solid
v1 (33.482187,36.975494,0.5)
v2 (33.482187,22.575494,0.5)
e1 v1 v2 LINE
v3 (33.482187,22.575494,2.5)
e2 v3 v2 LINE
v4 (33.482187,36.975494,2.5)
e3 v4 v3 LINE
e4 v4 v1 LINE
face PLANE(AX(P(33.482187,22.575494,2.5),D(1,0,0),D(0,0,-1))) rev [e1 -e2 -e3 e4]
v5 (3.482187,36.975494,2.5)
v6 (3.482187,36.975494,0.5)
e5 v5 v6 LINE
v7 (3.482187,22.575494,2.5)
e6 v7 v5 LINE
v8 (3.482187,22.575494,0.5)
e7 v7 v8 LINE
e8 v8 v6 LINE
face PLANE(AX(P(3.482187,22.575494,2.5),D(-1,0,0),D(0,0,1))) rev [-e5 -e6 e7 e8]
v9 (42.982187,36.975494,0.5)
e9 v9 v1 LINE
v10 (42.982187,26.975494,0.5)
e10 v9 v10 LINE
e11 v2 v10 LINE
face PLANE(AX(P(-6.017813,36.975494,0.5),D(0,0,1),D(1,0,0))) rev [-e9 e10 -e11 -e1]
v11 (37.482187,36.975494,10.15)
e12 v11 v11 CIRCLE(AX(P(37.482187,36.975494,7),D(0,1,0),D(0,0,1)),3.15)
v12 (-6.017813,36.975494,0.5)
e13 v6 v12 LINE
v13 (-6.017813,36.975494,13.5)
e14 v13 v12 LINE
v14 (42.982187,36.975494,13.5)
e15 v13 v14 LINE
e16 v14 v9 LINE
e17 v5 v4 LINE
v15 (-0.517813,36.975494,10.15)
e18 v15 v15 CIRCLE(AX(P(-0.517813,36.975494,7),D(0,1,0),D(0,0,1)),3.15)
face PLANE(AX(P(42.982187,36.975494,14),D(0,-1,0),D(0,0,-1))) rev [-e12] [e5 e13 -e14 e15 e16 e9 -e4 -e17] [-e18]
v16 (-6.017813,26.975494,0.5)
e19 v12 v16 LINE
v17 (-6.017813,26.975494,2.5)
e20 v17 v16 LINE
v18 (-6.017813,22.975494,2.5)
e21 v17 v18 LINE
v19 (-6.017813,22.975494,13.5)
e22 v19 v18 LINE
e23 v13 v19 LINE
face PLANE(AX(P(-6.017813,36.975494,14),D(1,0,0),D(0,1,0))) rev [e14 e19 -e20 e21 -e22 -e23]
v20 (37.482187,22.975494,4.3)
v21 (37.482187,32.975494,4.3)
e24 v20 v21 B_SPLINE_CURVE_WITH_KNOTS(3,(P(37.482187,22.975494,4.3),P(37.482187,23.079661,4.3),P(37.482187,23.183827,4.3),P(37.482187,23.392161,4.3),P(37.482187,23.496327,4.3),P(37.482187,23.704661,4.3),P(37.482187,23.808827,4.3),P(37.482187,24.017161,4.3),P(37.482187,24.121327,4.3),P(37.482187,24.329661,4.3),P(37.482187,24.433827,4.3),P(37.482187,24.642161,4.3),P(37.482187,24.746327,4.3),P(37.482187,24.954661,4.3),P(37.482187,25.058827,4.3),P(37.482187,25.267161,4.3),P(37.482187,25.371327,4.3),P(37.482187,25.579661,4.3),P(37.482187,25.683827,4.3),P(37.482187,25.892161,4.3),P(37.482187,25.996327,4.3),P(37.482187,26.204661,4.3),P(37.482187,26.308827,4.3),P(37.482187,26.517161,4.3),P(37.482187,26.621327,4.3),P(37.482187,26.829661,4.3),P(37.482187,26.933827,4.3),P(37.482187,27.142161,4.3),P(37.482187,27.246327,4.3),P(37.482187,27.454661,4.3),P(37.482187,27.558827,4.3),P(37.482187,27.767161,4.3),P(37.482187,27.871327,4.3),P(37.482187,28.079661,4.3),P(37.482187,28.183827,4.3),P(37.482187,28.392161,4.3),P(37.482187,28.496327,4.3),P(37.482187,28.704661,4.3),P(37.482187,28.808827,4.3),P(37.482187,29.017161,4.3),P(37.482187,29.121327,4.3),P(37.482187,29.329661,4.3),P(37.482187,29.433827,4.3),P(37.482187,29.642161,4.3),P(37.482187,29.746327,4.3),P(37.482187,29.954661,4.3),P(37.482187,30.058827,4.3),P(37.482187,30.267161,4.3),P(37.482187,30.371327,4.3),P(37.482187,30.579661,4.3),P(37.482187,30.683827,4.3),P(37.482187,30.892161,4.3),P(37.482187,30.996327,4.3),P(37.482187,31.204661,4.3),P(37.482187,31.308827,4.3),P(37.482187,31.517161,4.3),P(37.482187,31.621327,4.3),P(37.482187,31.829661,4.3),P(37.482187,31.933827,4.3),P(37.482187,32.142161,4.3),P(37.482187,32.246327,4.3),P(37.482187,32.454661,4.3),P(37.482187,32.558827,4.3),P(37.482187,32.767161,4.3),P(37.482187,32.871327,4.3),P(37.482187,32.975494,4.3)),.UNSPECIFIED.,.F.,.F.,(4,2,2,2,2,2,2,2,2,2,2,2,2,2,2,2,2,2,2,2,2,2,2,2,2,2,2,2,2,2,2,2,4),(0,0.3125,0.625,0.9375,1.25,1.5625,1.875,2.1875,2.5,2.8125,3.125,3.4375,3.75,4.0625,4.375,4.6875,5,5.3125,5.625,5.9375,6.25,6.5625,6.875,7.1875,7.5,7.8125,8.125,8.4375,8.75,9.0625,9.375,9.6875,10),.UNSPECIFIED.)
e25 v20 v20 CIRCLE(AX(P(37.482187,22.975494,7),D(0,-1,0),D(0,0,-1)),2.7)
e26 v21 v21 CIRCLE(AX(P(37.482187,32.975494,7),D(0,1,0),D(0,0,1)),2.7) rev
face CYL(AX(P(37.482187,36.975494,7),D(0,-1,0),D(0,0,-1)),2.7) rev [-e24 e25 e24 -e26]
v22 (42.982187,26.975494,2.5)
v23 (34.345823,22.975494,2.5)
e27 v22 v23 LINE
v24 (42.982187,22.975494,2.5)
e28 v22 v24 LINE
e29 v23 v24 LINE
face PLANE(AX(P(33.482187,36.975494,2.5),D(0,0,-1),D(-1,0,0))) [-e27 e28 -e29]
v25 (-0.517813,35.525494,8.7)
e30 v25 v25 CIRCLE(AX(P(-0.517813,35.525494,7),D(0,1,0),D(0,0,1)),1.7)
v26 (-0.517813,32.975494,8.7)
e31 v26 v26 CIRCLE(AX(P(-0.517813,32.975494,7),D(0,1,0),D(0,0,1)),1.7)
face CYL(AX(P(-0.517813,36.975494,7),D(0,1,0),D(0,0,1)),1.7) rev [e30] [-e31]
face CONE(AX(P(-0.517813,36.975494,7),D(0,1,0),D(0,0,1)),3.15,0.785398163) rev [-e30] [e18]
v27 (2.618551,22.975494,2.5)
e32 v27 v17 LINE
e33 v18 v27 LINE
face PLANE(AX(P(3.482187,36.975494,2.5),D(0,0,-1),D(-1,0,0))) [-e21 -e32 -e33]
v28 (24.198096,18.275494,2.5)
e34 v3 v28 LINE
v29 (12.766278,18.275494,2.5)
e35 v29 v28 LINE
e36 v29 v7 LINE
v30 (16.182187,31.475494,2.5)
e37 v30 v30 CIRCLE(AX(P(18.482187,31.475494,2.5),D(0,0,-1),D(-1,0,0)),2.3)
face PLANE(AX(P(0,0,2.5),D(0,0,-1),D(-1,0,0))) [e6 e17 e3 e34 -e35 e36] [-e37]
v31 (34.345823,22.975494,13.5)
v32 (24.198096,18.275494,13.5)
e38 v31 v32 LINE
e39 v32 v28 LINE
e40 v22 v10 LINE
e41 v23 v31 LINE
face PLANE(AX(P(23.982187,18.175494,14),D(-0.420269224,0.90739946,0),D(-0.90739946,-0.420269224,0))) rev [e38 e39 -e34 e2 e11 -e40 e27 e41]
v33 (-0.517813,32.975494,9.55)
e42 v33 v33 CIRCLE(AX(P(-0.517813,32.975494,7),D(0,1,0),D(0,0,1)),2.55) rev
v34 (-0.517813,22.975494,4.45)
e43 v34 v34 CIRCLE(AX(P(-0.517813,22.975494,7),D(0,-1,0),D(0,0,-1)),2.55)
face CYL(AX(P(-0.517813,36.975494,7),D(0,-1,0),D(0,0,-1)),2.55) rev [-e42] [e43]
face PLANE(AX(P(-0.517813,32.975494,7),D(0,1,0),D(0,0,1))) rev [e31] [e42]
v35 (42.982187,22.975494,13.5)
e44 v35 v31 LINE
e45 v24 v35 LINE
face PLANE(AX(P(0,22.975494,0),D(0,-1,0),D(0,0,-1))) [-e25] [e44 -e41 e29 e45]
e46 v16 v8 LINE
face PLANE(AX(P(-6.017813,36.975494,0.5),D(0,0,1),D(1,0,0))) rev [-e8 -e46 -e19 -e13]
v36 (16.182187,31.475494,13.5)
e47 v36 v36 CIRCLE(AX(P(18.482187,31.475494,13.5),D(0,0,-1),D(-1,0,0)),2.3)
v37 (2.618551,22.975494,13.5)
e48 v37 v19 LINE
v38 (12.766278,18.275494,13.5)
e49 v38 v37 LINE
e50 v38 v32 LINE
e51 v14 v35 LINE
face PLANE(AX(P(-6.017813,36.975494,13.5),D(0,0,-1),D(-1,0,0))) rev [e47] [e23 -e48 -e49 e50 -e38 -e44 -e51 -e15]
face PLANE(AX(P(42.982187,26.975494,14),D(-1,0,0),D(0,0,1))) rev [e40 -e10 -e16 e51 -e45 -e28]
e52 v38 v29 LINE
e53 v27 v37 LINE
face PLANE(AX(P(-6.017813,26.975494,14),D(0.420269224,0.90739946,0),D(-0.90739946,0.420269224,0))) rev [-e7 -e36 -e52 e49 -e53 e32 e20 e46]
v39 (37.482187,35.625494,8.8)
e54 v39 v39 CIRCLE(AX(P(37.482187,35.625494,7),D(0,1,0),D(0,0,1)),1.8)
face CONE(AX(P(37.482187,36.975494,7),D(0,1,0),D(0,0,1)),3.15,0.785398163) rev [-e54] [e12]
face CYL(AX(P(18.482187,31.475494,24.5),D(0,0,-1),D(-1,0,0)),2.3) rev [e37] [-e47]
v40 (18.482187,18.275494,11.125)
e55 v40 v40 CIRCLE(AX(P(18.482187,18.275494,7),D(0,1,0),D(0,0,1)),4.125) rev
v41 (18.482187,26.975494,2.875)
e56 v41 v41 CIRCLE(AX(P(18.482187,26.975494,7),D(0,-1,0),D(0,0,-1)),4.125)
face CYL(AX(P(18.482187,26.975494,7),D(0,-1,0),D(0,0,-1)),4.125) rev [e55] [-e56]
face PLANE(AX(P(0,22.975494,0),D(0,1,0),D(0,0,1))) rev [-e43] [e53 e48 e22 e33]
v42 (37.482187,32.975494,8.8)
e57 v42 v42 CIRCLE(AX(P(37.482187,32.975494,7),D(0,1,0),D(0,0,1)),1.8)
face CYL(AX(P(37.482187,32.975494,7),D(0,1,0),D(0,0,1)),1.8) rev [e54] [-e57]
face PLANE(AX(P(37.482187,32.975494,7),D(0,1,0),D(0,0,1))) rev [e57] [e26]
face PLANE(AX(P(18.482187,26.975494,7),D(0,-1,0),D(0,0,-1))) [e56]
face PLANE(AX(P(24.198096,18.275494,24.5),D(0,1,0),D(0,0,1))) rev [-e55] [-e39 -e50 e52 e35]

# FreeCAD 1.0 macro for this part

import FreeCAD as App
import Part
import Sketcher


def add_polygon(sketch, points):
    """Adds a closed chain of lines whose ends are joined by coincident constraints."""
    first, n = sketch.GeometryCount, len(points)
    for a, b in zip(points, points[1:] + points[:1]):
        sketch.addGeometry(Part.LineSegment(App.Vector(*a, 0), App.Vector(*b, 0)), False)
    for i in range(n):
        sketch.addConstraint(Sketcher.Constraint("Coincident", first + i, 2, first + (i + 1) % n, 1))

doc = App.newDocument("Part")
body = doc.addObject("PartDesign::Body", "Body")

# Sketch on XY plane
sketch1 = body.newObject("Sketcher::SketchObject", "Sketch")
sketch1.AttachmentSupport = (doc.getObject("XY_Plane"), [""])
sketch1.MapMode = "FlatFace"
add_polygon(sketch1, [(13, 18), (24, 18), (43, 27), (43, 37), (-6, 37), (-6, 27)])  # lines 0-5
sketch1.addConstraint(Sketcher.Constraint("Horizontal", 0))
sketch1.addConstraint(Sketcher.Constraint("Vertical", 2))
sketch1.addConstraint(Sketcher.Constraint("Horizontal", 3))
sketch1.addConstraint(Sketcher.Constraint("Vertical", 4))
sketch1.addConstraint(Sketcher.Constraint("Horizontal", 1, 2, 4, 2))
sketch1.addConstraint(Sketcher.Constraint("Equal", 1, 5))
sketch1.addConstraint(Sketcher.Constraint("DistanceX", 0, 1, 0, 2, 11.0))
sketch1.addConstraint(Sketcher.Constraint("DistanceX", 3, 2, 3, 1, 49.0))
sketch1.addConstraint(Sketcher.Constraint("DistanceY", 2, 1, 2, 2, 10.0))
sketch1.addConstraint(Sketcher.Constraint("DistanceY", 0, 2, 1, 2, 8.8))
sketch1.addConstraint(Sketcher.Constraint("DistanceX", -1, 1, 0, 2, 23.982187))
sketch1.addConstraint(Sketcher.Constraint("DistanceY", -1, 1, 0, 2, 18.175494))
pad1 = body.newObject("PartDesign::Pad", "Pad")
pad1.Profile = sketch1
pad1.Length = 14

# Sketch on XZ plane
sketch2 = body.newObject("Sketcher::SketchObject", "Sketch001")
sketch2.AttachmentSupport = (doc.getObject("XZ_Plane"), [""])
sketch2.MapMode = "FlatFace"
sketch2.AttachmentOffset = App.Placement(App.Vector(0, 0, -18.175494), App.Rotation())
sketch2.addGeometry(Part.Circle(App.Vector(18.5, 7, 0), App.Vector(0, 0, 1), 4.1), False)
sketch2.addConstraint(Sketcher.Constraint("Diameter", 0, 8.25))
sketch2.addConstraint(Sketcher.Constraint("DistanceY", -1, 1, 0, 3, 7.0))
sketch2.addConstraint(Sketcher.Constraint("DistanceX", -1, 1, 0, 3, 18.482187))
pocket1 = body.newObject("PartDesign::Pocket", "Pocket")
pocket1.Profile = sketch2
pocket1.Length = 8.8

# Sketch on XZ plane
sketch3 = body.newObject("Sketcher::SketchObject", "Sketch002")
sketch3.AttachmentSupport = (doc.getObject("XZ_Plane"), [""])
sketch3.MapMode = "FlatFace"
sketch3.AttachmentOffset = App.Placement(App.Vector(0, 0, -18.175494), App.Rotation())
sketch3.addGeometry(Part.Circle(App.Vector(37.5, 7, 0), App.Vector(0, 0, 1), 2.7), False)
sketch3.addGeometry(Part.Circle(App.Vector(-0.5, 7, 0), App.Vector(0, 0, 1), 2.7), False)
sketch3.addConstraint(Sketcher.Constraint("Equal", 0, 1))
sketch3.addConstraint(Sketcher.Constraint("Horizontal", 0, 3, 1, 3))
sketch3.addConstraint(Sketcher.Constraint("Diameter", 0, 5.4))
sketch3.addConstraint(Sketcher.Constraint("DistanceY", -1, 1, 0, 3, 7.0))
sketch3.addConstraint(Sketcher.Constraint("DistanceX", 1, 3, 0, 3, 38.0))
sketch3.addConstraint(Sketcher.Constraint("DistanceX", -1, 1, 0, 3, 37.482187))
pocket2 = body.newObject("PartDesign::Pocket", "Pocket001")
pocket2.Profile = sketch3
pocket2.Type = "ThroughAll"

# Sketch on XZ plane
sketch4 = body.newObject("Sketcher::SketchObject", "Sketch003")
sketch4.AttachmentSupport = (doc.getObject("XZ_Plane"), [""])
sketch4.MapMode = "FlatFace"
sketch4.AttachmentOffset = App.Placement(App.Vector(0, 0, -18.175494), App.Rotation())
add_polygon(sketch4, [(-6, 14), (-6, 13.5), (43, 13.5), (43, 14)])  # lines 0-3
add_polygon(sketch4, [(-6, 0.5), (-6, 0), (43, 0), (43, 0.5)])  # lines 4-7
sketch4.addConstraint(Sketcher.Constraint("Vertical", 0))
sketch4.addConstraint(Sketcher.Constraint("Horizontal", 1))
sketch4.addConstraint(Sketcher.Constraint("Vertical", 2))
sketch4.addConstraint(Sketcher.Constraint("Horizontal", 3))
sketch4.addConstraint(Sketcher.Constraint("Vertical", 4))
sketch4.addConstraint(Sketcher.Constraint("Horizontal", 5))
sketch4.addConstraint(Sketcher.Constraint("Vertical", 6))
sketch4.addConstraint(Sketcher.Constraint("Horizontal", 7))
sketch4.addConstraint(Sketcher.Constraint("PointOnObject", 4, 2, -1))
sketch4.addConstraint(Sketcher.Constraint("Vertical", 3, 2, 4, 2))
sketch4.addConstraint(Sketcher.Constraint("Vertical", 2, 2, 5, 2))
sketch4.addConstraint(Sketcher.Constraint("Equal", 2, 4))
sketch4.addConstraint(Sketcher.Constraint("DistanceX", 1, 1, 1, 2, 49.0))
sketch4.addConstraint(Sketcher.Constraint("DistanceY", 0, 2, 0, 1, 0.5))
sketch4.addConstraint(Sketcher.Constraint("DistanceY", -1, 1, 2, 2, 14.0))
sketch4.addConstraint(Sketcher.Constraint("DistanceX", 0, 2, -1, 1, 6.017813))
pocket3 = body.newObject("PartDesign::Pocket", "Pocket002")
pocket3.Profile = sketch4
pocket3.Type = "ThroughAll"

# Sketch on XZ plane
sketch5 = body.newObject("Sketcher::SketchObject", "Sketch004")
sketch5.AttachmentSupport = (doc.getObject("XZ_Plane"), [""])
sketch5.MapMode = "FlatFace"
sketch5.AttachmentOffset = App.Placement(App.Vector(0, 0, -32.975494), App.Rotation())
sketch5.addGeometry(Part.Circle(App.Vector(-0.5, 7, 0), App.Vector(0, 0, 1), 2.7), False)
sketch5.addGeometry(Part.Circle(App.Vector(-0.5, 7, 0), App.Vector(0, 0, 1), 1.5), False)
sketch5.addGeometry(Part.Circle(App.Vector(37.5, 7, 0), App.Vector(0, 0, 1), 2.7), False)
sketch5.addGeometry(Part.Circle(App.Vector(37.5, 7, 0), App.Vector(0, 0, 1), 1.8), False)
sketch5.addConstraint(Sketcher.Constraint("Coincident", 1, 3, 0, 3))
sketch5.addConstraint(Sketcher.Constraint("Coincident", 3, 3, 2, 3))
sketch5.addConstraint(Sketcher.Constraint("Equal", 0, 2))
sketch5.addConstraint(Sketcher.Constraint("Horizontal", 1, 3, 2, 3))
sketch5.addConstraint(Sketcher.Constraint("Diameter", 1, 3.0))
sketch5.addConstraint(Sketcher.Constraint("Diameter", 0, 5.4))
sketch5.addConstraint(Sketcher.Constraint("Diameter", 3, 3.6))
sketch5.addConstraint(Sketcher.Constraint("DistanceY", -1, 1, 0, 3, 7.0))
sketch5.addConstraint(Sketcher.Constraint("DistanceX", 0, 3, 2, 3, 38.0))
sketch5.addConstraint(Sketcher.Constraint("DistanceX", 0, 3, -1, 1, 0.517813))
pad2 = body.newObject("PartDesign::Pad", "Pad001")
pad2.Profile = sketch5
pad2.Length = 4
pad2.Reversed = True

# Sketch on XY plane
sketch6 = body.newObject("Sketcher::SketchObject", "Sketch005")
sketch6.AttachmentSupport = (doc.getObject("XY_Plane"), [""])
sketch6.MapMode = "FlatFace"
sketch6.AttachmentOffset = App.Placement(App.Vector(0, 0, 0.5), App.Rotation())
add_polygon(sketch6, [(33, 37), (33, 23), (24, 18), (13, 18), (3, 23), (3, 37)])  # lines 0-5
sketch6.addConstraint(Sketcher.Constraint("Vertical", 0))
sketch6.addConstraint(Sketcher.Constraint("Horizontal", 2))
sketch6.addConstraint(Sketcher.Constraint("Vertical", 4))
sketch6.addConstraint(Sketcher.Constraint("Horizontal", 5))
sketch6.addConstraint(Sketcher.Constraint("Horizontal", 0, 2, 3, 2))
sketch6.addConstraint(Sketcher.Constraint("Equal", 1, 3))
sketch6.addConstraint(Sketcher.Constraint("DistanceX", 2, 2, 2, 1, 11.0))
sketch6.addConstraint(Sketcher.Constraint("DistanceX", 5, 1, 5, 2, 30.0))
sketch6.addConstraint(Sketcher.Constraint("DistanceY", 0, 2, 0, 1, 14.4))
sketch6.addConstraint(Sketcher.Constraint("DistanceY", 1, 2, 0, 2, 4.4))
sketch6.addConstraint(Sketcher.Constraint("DistanceX", -1, 1, 0, 2, 33.482187))
sketch6.addConstraint(Sketcher.Constraint("DistanceY", -1, 1, 0, 2, 22.575494))
pocket4 = body.newObject("PartDesign::Pocket", "Pocket003")
pocket4.Profile = sketch6
pocket4.Length = 2
pocket4.Reversed = True

# Sketch on XZ plane
sketch7 = body.newObject("Sketcher::SketchObject", "Sketch006")
sketch7.AttachmentSupport = (doc.getObject("XZ_Plane"), [""])
sketch7.MapMode = "FlatFace"
sketch7.AttachmentOffset = App.Placement(App.Vector(0, 0, -27.975494), App.Rotation())
sketch7.addGeometry(Part.Circle(App.Vector(37.5, 7, 0), App.Vector(0, 0, 1), 2.7), False)
sketch7.addGeometry(Part.Circle(App.Vector(37.5, 7, 0), App.Vector(0, 0, 1), 2.4), False)
sketch7.addGeometry(Part.Circle(App.Vector(-0.5, 7, 0), App.Vector(0, 0, 1), 2.7), False)
sketch7.addGeometry(Part.Circle(App.Vector(-0.5, 7, 0), App.Vector(0, 0, 1), 2.4), False)
sketch7.addConstraint(Sketcher.Constraint("Coincident", 1, 3, 0, 3))
sketch7.addConstraint(Sketcher.Constraint("Coincident", 3, 3, 2, 3))
sketch7.addConstraint(Sketcher.Constraint("Equal", 0, 2))
sketch7.addConstraint(Sketcher.Constraint("Equal", 1, 3))
sketch7.addConstraint(Sketcher.Constraint("Horizontal", 1, 3, 2, 3))
sketch7.addConstraint(Sketcher.Constraint("Diameter", 0, 5.4))
sketch7.addConstraint(Sketcher.Constraint("Diameter", 1, 4.8))
sketch7.addConstraint(Sketcher.Constraint("DistanceY", -1, 1, 0, 3, 7.0))
sketch7.addConstraint(Sketcher.Constraint("DistanceX", 2, 3, 0, 3, 38.0))
sketch7.addConstraint(Sketcher.Constraint("DistanceX", -1, 1, 0, 3, 37.482187))
pad3 = body.newObject("PartDesign::Pad", "Pad002")
pad3.Profile = sketch7
pad3.Length = 5
pad3.Reversed = True

# Sketch on XY plane
sketch8 = body.newObject("Sketcher::SketchObject", "Sketch007")
sketch8.AttachmentSupport = (doc.getObject("XY_Plane"), [""])
sketch8.MapMode = "FlatFace"
sketch8.AttachmentOffset = App.Placement(App.Vector(0, 0, 2.5), App.Rotation())
sketch8.addGeometry(Part.Circle(App.Vector(18.48, 31.48, 0), App.Vector(0, 0, 1), 2.3), False)  # 0
add_polygon(sketch8, [(24.2, 18.28), (24.2, 18.18), (12.77, 18.18), (12.77, 18.28)])  # lines 1-4
sketch8.addConstraint(Sketcher.Constraint("Vertical", 1))
sketch8.addConstraint(Sketcher.Constraint("Horizontal", 2))
sketch8.addConstraint(Sketcher.Constraint("Vertical", 3))
sketch8.addConstraint(Sketcher.Constraint("Horizontal", 4))
sketch8.addConstraint(Sketcher.Constraint("Diameter", 0, 4.6))
sketch8.addConstraint(Sketcher.Constraint("DistanceY", 1, 2, 1, 1, 0.1))
sketch8.addConstraint(Sketcher.Constraint("DistanceY", 1, 2, 0, 3, 13.3))
sketch8.addConstraint(Sketcher.Constraint("DistanceX", 2, 2, 2, 1, 11.431818))
sketch8.addConstraint(Sketcher.Constraint("DistanceX", -1, 1, 2, 2, 12.766278))
sketch8.addConstraint(Sketcher.Constraint("DistanceX", 0, 3, 1, 2, 5.715909))
sketch8.addConstraint(Sketcher.Constraint("DistanceY", -1, 1, 0, 3, 31.475494))
pocket5 = body.newObject("PartDesign::Pocket", "Pocket004")
pocket5.Profile = sketch8
pocket5.Length = 22
pocket5.Reversed = True

# Sketch on XZ plane
sketch9 = body.newObject("Sketcher::SketchObject", "Sketch008")
sketch9.AttachmentSupport = (doc.getObject("XZ_Plane"), [""])
sketch9.MapMode = "FlatFace"
sketch9.AttachmentOffset = App.Placement(App.Vector(0, 0, -26.975494), App.Rotation())
add_polygon(sketch9, [(43, 2.5), (43, 13.5), (33.5, 13.5), (33.5, 2.5)])  # lines 0-3
sketch9.addGeometry(Part.Circle(App.Vector(37.5, 7, 0), App.Vector(0, 0, 1), 2.7), False)  # 4
add_polygon(sketch9, [(3.5, 2.5), (3.5, 13.5), (-6, 13.5), (-6, 2.5)])  # lines 5-8
sketch9.addGeometry(Part.Circle(App.Vector(-0.5, 7, 0), App.Vector(0, 0, 1), 2.5), False)  # 9
sketch9.addConstraint(Sketcher.Constraint("Vertical", 0))
sketch9.addConstraint(Sketcher.Constraint("Horizontal", 1))
sketch9.addConstraint(Sketcher.Constraint("Vertical", 2))
sketch9.addConstraint(Sketcher.Constraint("Horizontal", 3))
sketch9.addConstraint(Sketcher.Constraint("Vertical", 5))
sketch9.addConstraint(Sketcher.Constraint("Horizontal", 6))
sketch9.addConstraint(Sketcher.Constraint("Vertical", 7))
sketch9.addConstraint(Sketcher.Constraint("Horizontal", 8))
sketch9.addConstraint(Sketcher.Constraint("Horizontal", 4, 3, 9, 3))
sketch9.addConstraint(Sketcher.Constraint("Horizontal", 1, 2, 5, 2))
sketch9.addConstraint(Sketcher.Constraint("Horizontal", 3, 2, 7, 2))
sketch9.addConstraint(Sketcher.Constraint("Equal", 3, 6))
sketch9.addConstraint(Sketcher.Constraint("Diameter", 4, 5.4))
sketch9.addConstraint(Sketcher.Constraint("Diameter", 9, 5.1))
sketch9.addConstraint(Sketcher.Constraint("DistanceY", 0, 1, 0, 2, 11.0))
sketch9.addConstraint(Sketcher.Constraint("DistanceX", 1, 2, 1, 1, 9.5))
sketch9.addConstraint(Sketcher.Constraint("DistanceY", -1, 1, 4, 3, 7.0))
sketch9.addConstraint(Sketcher.Constraint("DistanceX", 9, 3, 4, 3, 38.0))
sketch9.addConstraint(Sketcher.Constraint("DistanceX", 1, 2, 4, 3, 4.0))
sketch9.addConstraint(Sketcher.Constraint("DistanceX", 9, 3, 5, 2, 4.0))
sketch9.addConstraint(Sketcher.Constraint("DistanceY", -1, 1, 0, 2, 13.5))
sketch9.addConstraint(Sketcher.Constraint("DistanceX", -1, 1, 4, 3, 37.482187))
pad4 = body.newObject("PartDesign::Pad", "Pad003")
pad4.Profile = sketch9
pad4.Type = "TwoLengths"
pad4.Length = 4
pad4.Length2 = 10

# Sketch on XZ plane
sketch10 = body.newObject("Sketcher::SketchObject", "Sketch009")
sketch10.AttachmentSupport = (doc.getObject("XZ_Plane"), [""])
sketch10.MapMode = "FlatFace"
sketch10.AttachmentOffset = App.Placement(App.Vector(0, 0, -32.975494), App.Rotation())
sketch10.addGeometry(Part.Circle(App.Vector(-0.5, 7, 0), App.Vector(0, 0, 1), 2.5), False)
sketch10.addGeometry(Part.Circle(App.Vector(37.5, 7, 0), App.Vector(0, 0, 1), 2.7), False)
sketch10.addConstraint(Sketcher.Constraint("Horizontal", 0, 3, 1, 3))
sketch10.addConstraint(Sketcher.Constraint("Diameter", 0, 5.1))
sketch10.addConstraint(Sketcher.Constraint("Diameter", 1, 5.4))
sketch10.addConstraint(Sketcher.Constraint("DistanceY", -1, 1, 0, 3, 7.0))
sketch10.addConstraint(Sketcher.Constraint("DistanceX", 0, 3, 1, 3, 38.0))
sketch10.addConstraint(Sketcher.Constraint("DistanceX", 0, 3, -1, 1, 0.517813))
pocket6 = body.newObject("PartDesign::Pocket", "Pocket005")
pocket6.Profile = sketch10
pocket6.Length = 10
pocket6.Reversed = True

# Sketch on XZ plane
sketch11 = body.newObject("Sketcher::SketchObject", "Sketch010")
sketch11.AttachmentSupport = (doc.getObject("XZ_Plane"), [""])
sketch11.MapMode = "FlatFace"
sketch11.AttachmentOffset = App.Placement(App.Vector(0, 0, -36.975494), App.Rotation())
sketch11.addGeometry(Part.Circle(App.Vector(-0.5, 7, 0), App.Vector(0, 0, 1), 1.7), False)
sketch11.addGeometry(Part.Circle(App.Vector(37.5, 7, 0), App.Vector(0, 0, 1), 1.7), False)
sketch11.addConstraint(Sketcher.Constraint("Equal", 0, 1))
sketch11.addConstraint(Sketcher.Constraint("Horizontal", 0, 3, 1, 3))
sketch11.addConstraint(Sketcher.Constraint("Diameter", 0, 3.4))
sketch11.addConstraint(Sketcher.Constraint("DistanceY", -1, 1, 0, 3, 7.0))
sketch11.addConstraint(Sketcher.Constraint("DistanceX", 0, 3, 1, 3, 38.0))
sketch11.addConstraint(Sketcher.Constraint("DistanceX", 0, 3, -1, 1, 0.517813))
doc.recompute()
hole = body.newObject("PartDesign::Hole", "Hole")
hole.Profile = sketch11
hole.ThreadType = "None"
hole.Diameter = 3.4
hole.DepthType = "ThroughAll"
hole.HoleCutType = "Countersink"
hole.HoleCutDiameter = 6.3
hole.HoleCutCountersinkAngle = 90
hole.Reversed = True

doc.recompute()
